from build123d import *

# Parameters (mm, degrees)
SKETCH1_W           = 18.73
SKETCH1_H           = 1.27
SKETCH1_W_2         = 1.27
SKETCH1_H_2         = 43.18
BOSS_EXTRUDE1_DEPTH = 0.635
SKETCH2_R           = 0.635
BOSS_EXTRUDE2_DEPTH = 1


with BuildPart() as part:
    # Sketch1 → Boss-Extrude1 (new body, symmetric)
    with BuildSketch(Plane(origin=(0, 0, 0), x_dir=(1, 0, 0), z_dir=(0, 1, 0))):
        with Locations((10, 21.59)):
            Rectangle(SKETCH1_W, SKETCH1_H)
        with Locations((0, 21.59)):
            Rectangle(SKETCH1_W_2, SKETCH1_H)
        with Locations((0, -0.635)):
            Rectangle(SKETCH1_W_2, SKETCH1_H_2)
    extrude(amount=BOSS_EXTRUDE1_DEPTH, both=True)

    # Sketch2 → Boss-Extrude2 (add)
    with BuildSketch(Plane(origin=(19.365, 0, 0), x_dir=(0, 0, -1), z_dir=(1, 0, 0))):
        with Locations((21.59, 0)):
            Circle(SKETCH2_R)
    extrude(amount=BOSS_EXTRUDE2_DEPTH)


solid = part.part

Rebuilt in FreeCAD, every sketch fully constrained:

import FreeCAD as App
import Part
import Sketcher

V = App.Vector
Q = App.Units.Quantity

doc = App.newDocument("Part")
body = doc.addObject("PartDesign::Body", "Body")

# Sketch on XZ plane
sketch1 = body.newObject("Sketcher::SketchObject", "Sketch")
sketch1.AttachmentSupport = (doc.getObject("XZ_Plane"), [""])
sketch1.MapMode = "FlatFace"
sketch1.addGeometry(Part.LineSegment(V(19.4, -21, 0), V(19.4, -22.2, 0)), False)
sketch1.addGeometry(Part.LineSegment(V(19.4, -22.2, 0), V(-0.6, -22.2, 0)), False)
sketch1.addGeometry(Part.LineSegment(V(-0.6, -22.2, 0), V(-0.6, 22.2, 0)), False)
sketch1.addGeometry(Part.LineSegment(V(-0.6, 22.2, 0), V(0.6, 22.2, 0)), False)
sketch1.addGeometry(Part.LineSegment(V(0.6, 22.2, 0), V(0.6, -21, 0)), False)
sketch1.addGeometry(Part.LineSegment(V(0.6, -21, 0), V(19.4, -21, 0)), False)
sketch1.addConstraint(Sketcher.Constraint("Coincident", 0, 2, 1, 1))
sketch1.addConstraint(Sketcher.Constraint("Coincident", 1, 2, 2, 1))
sketch1.addConstraint(Sketcher.Constraint("Coincident", 2, 2, 3, 1))
sketch1.addConstraint(Sketcher.Constraint("Coincident", 3, 2, 4, 1))
sketch1.addConstraint(Sketcher.Constraint("Coincident", 4, 2, 5, 1))
sketch1.addConstraint(Sketcher.Constraint("Coincident", 5, 2, 0, 1))
sketch1.addConstraint(Sketcher.Constraint("Vertical", 0))
sketch1.addConstraint(Sketcher.Constraint("Horizontal", 1))
sketch1.addConstraint(Sketcher.Constraint("Vertical", 2))
sketch1.addConstraint(Sketcher.Constraint("Horizontal", 3))
sketch1.addConstraint(Sketcher.Constraint("Vertical", 4))
sketch1.addConstraint(Sketcher.Constraint("Horizontal", 5))
sketch1.addConstraint(Sketcher.Constraint("Symmetric", 1, 2, 3, 2, -1, 1))
sketch1.addConstraint(Sketcher.Constraint("Equal", 3, 0))
sketch1.addConstraint(Sketcher.Constraint("DistanceY", 4, 2, 4, 1, Q("1.7 in")))
sketch1.addConstraint(Sketcher.Constraint("DistanceX", 3, 1, 3, 2, Q("0.05 in")))
sketch1.addConstraint(Sketcher.Constraint("DistanceX", 1, 2, 1, 1, 20.0))
pad1 = body.newObject("PartDesign::Pad", "Pad")
pad1.Profile = sketch1
pad1.Length = Q("0.05 in")
pad1.Midplane = True

# Sketch on YZ plane
sketch2 = body.newObject("Sketcher::SketchObject", "Sketch001")
sketch2.AttachmentSupport = (doc.getObject("YZ_Plane"), [""])
sketch2.MapMode = "FlatFace"
sketch2.AttachmentOffset = App.Placement(V(0, 0, 19.365), App.Rotation())
sketch2.addGeometry(Part.Circle(V(0, -21.6, 0), V(0, 0, 1), 0.6), False)
sketch2.addConstraint(Sketcher.Constraint("PointOnObject", 0, 3, -2))
sketch2.addConstraint(Sketcher.Constraint("Diameter", 0, Q("0.05 in")))
sketch2.addConstraint(Sketcher.Constraint("DistanceY", 0, 3, -1, 1, Q("0.85 in")))
pad2 = body.newObject("PartDesign::Pad", "Pad001")
pad2.Profile = sketch2
pad2.Length = 1

doc.recompute()
